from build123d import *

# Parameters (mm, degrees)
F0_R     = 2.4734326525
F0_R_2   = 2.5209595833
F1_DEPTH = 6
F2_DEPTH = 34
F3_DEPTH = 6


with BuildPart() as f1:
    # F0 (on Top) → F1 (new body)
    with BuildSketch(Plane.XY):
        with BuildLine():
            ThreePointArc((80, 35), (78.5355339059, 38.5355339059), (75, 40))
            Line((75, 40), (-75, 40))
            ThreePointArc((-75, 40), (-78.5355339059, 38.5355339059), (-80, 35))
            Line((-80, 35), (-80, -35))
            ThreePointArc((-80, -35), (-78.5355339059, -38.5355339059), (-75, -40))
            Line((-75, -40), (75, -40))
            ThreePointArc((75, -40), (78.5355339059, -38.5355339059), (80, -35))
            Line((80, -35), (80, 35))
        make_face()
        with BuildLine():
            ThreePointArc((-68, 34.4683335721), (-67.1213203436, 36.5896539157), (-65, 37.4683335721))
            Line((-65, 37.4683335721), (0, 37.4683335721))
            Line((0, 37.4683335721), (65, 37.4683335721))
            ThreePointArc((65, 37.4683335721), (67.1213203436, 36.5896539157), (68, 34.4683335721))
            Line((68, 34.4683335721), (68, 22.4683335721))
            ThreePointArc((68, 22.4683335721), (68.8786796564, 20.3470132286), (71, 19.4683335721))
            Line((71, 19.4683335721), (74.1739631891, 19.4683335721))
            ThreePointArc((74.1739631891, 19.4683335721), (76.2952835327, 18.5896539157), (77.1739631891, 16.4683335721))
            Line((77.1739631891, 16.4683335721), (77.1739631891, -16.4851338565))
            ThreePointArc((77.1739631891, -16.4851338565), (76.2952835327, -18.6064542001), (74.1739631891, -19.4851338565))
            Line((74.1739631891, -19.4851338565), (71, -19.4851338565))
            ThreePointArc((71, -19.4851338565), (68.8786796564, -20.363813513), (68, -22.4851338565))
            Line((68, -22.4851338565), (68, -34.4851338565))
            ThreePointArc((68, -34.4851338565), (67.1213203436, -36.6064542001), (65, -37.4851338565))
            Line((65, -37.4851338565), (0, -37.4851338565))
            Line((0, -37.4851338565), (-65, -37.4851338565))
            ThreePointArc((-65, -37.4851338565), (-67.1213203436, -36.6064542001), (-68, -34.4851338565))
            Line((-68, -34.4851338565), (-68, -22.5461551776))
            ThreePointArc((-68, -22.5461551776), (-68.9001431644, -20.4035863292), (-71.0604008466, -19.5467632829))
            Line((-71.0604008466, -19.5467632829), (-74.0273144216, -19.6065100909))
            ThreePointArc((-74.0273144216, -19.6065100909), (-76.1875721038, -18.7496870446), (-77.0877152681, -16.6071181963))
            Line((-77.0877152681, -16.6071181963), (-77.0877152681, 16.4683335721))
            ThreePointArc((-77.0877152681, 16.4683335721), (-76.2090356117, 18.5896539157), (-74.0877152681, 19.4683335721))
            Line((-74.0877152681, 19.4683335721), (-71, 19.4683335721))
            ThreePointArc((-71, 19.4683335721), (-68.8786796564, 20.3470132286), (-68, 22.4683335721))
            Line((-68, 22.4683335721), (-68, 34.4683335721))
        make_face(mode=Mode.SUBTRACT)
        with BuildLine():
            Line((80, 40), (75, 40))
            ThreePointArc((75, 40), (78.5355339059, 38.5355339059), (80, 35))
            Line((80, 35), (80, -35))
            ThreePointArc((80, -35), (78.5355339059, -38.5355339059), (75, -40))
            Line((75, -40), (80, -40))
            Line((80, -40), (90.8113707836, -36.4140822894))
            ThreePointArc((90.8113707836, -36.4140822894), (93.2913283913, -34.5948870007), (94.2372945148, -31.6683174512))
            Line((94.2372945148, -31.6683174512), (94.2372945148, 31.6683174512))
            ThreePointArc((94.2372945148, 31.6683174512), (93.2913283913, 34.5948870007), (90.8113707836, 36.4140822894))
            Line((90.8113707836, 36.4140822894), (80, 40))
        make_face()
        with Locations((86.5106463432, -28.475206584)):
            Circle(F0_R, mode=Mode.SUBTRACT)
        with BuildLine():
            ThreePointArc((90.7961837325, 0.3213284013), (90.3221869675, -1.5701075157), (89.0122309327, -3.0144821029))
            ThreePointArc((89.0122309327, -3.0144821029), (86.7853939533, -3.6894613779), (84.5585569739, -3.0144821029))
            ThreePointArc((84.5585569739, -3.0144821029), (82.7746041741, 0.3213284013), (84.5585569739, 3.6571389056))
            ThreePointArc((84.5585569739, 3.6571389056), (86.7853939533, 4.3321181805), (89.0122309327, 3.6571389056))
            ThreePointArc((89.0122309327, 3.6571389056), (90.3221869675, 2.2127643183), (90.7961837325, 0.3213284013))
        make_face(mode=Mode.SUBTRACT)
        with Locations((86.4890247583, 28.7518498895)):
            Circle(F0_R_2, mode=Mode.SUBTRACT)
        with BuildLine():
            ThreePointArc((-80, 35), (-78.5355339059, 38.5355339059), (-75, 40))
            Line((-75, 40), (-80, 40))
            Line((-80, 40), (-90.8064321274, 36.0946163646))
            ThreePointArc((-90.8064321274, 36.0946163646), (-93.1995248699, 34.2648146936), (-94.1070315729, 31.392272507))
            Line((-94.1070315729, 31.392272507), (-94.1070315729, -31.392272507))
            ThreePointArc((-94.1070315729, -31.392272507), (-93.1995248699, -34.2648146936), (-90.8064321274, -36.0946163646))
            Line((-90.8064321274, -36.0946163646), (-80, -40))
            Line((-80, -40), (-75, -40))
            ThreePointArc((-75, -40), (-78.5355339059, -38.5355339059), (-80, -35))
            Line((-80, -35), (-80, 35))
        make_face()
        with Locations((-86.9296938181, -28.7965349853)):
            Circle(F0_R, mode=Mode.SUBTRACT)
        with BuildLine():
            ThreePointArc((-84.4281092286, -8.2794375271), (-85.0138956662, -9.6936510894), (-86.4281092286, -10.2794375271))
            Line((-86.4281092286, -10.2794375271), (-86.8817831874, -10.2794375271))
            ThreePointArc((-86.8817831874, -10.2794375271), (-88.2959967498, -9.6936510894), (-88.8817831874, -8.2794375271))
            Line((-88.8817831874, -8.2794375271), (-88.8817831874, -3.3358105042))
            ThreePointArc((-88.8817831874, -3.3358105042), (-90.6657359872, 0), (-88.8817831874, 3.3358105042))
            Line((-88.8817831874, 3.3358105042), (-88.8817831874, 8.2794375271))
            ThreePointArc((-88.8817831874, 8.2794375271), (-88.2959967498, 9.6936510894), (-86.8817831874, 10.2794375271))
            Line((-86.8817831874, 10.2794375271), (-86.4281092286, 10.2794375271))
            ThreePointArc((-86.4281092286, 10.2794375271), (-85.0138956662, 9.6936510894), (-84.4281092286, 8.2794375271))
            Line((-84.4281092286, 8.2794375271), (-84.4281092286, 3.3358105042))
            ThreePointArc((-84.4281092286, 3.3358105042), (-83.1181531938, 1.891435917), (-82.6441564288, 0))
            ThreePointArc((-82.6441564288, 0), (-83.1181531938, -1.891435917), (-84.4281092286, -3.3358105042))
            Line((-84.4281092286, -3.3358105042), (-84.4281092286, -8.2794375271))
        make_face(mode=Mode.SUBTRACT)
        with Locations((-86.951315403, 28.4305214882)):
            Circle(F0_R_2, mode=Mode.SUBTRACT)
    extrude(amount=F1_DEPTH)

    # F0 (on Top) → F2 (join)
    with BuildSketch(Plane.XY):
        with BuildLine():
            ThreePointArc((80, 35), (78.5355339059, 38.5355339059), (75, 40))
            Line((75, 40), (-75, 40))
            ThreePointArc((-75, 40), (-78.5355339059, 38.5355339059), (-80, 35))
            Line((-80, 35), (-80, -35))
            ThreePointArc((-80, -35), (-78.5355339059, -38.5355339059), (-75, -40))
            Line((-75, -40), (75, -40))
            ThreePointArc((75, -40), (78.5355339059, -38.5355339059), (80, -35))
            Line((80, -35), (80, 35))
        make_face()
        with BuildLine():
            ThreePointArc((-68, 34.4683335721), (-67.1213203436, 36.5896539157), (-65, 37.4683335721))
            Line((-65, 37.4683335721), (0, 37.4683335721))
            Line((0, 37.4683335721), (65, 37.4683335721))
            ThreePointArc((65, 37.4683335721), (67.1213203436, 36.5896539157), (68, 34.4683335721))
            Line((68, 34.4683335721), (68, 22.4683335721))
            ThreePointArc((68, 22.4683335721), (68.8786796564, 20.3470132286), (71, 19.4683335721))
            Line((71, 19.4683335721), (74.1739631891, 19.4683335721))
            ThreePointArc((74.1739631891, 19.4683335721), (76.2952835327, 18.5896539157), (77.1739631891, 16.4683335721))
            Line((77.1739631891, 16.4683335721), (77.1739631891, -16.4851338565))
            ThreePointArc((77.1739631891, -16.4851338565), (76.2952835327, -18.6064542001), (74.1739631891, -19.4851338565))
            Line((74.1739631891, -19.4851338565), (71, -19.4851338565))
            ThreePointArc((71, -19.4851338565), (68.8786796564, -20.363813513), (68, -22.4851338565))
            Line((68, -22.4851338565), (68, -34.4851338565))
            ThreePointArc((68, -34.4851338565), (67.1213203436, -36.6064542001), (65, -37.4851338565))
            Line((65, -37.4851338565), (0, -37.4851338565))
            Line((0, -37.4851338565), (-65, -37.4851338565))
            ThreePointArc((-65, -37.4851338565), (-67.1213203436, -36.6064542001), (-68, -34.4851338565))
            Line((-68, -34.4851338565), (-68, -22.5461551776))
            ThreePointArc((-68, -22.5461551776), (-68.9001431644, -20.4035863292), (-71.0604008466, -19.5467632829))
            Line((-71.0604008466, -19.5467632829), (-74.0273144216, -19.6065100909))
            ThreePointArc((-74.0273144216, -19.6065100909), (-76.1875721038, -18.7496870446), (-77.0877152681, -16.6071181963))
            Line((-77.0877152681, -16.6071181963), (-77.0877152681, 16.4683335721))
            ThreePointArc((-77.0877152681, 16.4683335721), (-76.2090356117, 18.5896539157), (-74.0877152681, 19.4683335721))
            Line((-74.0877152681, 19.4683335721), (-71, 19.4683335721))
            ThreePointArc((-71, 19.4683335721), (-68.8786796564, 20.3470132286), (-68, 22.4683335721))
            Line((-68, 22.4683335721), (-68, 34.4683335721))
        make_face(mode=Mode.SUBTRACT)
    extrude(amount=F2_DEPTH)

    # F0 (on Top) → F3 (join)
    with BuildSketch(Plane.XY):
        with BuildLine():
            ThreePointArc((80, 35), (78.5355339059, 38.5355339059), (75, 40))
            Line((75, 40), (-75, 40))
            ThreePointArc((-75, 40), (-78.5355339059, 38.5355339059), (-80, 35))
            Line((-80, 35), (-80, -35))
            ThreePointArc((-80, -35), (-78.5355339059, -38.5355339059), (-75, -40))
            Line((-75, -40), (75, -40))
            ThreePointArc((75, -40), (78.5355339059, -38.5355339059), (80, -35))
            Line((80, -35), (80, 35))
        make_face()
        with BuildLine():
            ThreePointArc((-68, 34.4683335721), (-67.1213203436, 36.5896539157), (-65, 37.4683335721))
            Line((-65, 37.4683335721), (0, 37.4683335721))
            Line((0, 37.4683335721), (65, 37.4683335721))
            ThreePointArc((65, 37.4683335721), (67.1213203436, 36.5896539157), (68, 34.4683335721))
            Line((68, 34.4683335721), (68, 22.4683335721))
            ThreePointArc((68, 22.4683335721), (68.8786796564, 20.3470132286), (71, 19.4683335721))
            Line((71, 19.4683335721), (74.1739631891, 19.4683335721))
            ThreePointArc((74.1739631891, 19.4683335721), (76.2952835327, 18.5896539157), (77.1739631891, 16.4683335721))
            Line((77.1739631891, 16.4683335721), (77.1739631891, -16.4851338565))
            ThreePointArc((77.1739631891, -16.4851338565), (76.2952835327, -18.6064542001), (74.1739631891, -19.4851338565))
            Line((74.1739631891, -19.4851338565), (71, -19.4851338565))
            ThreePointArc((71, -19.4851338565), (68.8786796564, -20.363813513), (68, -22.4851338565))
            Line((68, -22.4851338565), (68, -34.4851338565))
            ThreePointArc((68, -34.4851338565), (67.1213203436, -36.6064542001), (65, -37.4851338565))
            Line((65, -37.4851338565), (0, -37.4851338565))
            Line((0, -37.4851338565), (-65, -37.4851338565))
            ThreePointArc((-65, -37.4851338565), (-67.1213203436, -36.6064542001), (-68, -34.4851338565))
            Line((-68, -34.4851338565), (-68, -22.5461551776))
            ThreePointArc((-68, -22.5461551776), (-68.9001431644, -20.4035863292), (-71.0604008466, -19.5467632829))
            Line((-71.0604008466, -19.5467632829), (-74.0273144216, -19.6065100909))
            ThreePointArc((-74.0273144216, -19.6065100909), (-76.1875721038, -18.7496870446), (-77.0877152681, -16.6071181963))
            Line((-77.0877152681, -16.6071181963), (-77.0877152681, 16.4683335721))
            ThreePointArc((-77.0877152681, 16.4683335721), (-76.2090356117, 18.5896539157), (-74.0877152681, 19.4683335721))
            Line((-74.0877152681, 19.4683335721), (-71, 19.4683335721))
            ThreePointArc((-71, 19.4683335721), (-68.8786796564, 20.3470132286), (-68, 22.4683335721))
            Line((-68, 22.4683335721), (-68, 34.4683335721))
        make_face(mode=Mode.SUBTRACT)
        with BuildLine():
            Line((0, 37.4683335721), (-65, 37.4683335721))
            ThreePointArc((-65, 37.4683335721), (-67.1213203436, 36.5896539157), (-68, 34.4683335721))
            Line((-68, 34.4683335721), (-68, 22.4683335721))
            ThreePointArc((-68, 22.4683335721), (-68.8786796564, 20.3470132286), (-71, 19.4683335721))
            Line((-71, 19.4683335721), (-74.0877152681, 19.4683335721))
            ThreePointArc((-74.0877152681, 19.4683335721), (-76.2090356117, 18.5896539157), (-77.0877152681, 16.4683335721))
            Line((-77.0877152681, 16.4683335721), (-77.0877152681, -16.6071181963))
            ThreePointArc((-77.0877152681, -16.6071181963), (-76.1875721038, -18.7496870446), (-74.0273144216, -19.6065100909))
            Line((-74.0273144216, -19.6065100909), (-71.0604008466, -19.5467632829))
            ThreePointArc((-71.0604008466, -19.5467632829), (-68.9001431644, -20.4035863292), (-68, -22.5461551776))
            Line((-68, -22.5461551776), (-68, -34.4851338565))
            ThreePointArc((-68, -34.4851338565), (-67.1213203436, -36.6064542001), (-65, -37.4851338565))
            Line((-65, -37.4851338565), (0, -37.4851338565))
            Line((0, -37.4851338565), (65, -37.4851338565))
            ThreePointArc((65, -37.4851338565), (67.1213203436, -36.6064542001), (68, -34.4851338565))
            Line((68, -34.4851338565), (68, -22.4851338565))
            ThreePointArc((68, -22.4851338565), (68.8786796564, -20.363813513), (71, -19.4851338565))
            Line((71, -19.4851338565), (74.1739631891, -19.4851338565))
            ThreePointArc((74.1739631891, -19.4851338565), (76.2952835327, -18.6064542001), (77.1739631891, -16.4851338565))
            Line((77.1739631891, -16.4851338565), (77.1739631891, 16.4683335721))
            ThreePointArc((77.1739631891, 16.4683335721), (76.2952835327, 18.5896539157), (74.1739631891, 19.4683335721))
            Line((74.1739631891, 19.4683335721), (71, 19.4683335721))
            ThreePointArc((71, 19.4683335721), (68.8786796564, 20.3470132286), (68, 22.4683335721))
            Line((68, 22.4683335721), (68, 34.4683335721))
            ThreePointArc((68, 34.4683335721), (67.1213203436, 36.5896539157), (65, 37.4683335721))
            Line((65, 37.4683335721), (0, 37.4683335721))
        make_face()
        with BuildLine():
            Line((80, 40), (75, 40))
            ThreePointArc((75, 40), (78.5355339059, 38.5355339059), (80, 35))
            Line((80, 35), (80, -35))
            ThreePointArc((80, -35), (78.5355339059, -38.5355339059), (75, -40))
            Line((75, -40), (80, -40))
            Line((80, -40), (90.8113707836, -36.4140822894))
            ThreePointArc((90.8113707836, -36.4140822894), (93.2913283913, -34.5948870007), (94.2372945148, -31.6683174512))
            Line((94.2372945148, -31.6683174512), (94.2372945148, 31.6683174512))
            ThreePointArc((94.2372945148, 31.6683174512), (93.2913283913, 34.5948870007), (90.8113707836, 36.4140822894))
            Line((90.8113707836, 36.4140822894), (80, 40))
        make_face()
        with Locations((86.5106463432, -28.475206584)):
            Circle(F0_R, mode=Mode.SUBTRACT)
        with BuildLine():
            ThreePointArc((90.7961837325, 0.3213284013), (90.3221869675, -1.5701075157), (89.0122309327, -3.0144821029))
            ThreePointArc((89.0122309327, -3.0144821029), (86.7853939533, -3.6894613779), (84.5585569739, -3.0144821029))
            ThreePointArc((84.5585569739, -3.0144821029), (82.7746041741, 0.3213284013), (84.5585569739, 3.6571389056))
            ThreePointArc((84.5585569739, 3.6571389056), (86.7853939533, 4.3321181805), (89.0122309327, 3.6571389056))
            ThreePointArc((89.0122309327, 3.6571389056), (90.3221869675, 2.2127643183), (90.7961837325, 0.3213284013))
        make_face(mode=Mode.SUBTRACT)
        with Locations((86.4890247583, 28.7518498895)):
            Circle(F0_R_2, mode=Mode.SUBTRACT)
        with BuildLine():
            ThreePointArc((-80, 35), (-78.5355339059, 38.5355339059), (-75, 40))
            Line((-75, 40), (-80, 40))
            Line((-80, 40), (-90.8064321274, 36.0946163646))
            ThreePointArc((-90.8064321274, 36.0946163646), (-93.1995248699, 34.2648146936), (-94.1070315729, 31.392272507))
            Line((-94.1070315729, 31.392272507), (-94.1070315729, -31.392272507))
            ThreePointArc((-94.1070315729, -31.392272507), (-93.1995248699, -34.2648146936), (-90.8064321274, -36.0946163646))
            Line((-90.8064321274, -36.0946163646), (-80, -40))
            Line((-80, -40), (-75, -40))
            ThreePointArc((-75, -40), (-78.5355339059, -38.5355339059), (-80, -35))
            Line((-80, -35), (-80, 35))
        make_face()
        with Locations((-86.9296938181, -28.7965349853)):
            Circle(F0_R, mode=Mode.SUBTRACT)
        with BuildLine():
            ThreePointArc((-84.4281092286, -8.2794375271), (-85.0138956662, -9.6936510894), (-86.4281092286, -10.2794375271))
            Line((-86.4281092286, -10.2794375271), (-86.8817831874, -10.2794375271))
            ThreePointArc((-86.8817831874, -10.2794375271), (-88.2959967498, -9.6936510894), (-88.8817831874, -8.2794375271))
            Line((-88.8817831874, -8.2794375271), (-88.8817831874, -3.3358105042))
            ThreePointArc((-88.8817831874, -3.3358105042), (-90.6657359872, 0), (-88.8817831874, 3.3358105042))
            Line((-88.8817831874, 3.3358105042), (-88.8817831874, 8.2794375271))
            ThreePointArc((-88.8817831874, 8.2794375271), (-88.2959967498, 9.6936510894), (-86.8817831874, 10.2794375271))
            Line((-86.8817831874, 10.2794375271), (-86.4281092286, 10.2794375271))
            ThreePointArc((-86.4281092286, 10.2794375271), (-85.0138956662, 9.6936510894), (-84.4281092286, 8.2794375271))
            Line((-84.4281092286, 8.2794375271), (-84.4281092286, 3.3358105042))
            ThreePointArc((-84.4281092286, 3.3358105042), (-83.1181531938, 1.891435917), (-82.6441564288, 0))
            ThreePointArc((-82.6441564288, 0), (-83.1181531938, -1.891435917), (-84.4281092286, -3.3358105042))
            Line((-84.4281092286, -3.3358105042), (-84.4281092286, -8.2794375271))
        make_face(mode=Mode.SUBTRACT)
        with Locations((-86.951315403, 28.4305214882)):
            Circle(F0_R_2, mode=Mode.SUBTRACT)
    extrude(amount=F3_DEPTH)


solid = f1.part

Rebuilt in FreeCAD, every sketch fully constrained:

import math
import FreeCAD as App
import Part
import Sketcher

V = App.Vector

doc = App.newDocument("Part")
body = doc.addObject("PartDesign::Body", "Body")

# Sketch on XY plane
sketch1 = body.newObject("Sketcher::SketchObject", "Sketch")
sketch1.AttachmentSupport = (doc.getObject("XY_Plane"), [""])
sketch1.MapMode = "FlatFace"
sketch1.addGeometry([
    Part.LineSegment(V(80, 40, 0), V(-80, 40, 0)),  # 0
    Part.LineSegment(V(-80, 40, 0), V(-90.81, 36.09, 0)),  # 1
    Part.ArcOfCircle(Part.Circle(V(-89.11, 31.39, 0), V(0, 0, 1), 5), math.radians(110), math.radians(180)),  # 2
    Part.LineSegment(V(-94.11, 31.39, 0), V(-94.11, -31.39, 0)),  # 3
    Part.ArcOfCircle(Part.Circle(V(-89.11, -31.39, 0), V(0, 0, 1), 5), math.radians(180), math.radians(250)),  # 4
    Part.LineSegment(V(-90.81, -36.09, 0), V(-80, -40, 0)),  # 5
    Part.LineSegment(V(-80, -40, 0), V(80, -40, 0)),  # 6
    Part.LineSegment(V(80, -40, 0), V(90.81, -36.41, 0)),  # 7
    Part.ArcOfCircle(Part.Circle(V(89.24, -31.67, 0), V(0, 0, 1), 5), math.radians(-72), math.radians(0)),  # 8
    Part.LineSegment(V(94.24, -31.67, 0), V(94.24, 31.67, 0)),  # 9
    Part.ArcOfCircle(Part.Circle(V(89.24, 31.67, 0), V(0, 0, 1), 5), math.radians(0), math.radians(72)),  # 10
    Part.LineSegment(V(90.81, 36.41, 0), V(80, 40, 0)),  # 11
    Part.Circle(V(-86.93, -28.8, 0), V(0, 0, 1), 2.47),  # 12
    Part.LineSegment(V(-68, 22.47, 0), V(-68, 34.47, 0)),  # 13
    Part.ArcOfCircle(Part.Circle(V(-65, 34.47, 0), V(0, 0, 1), 3), math.radians(90), math.radians(180)),  # 14
    Part.LineSegment(V(-65, 37.47, 0), V(65, 37.47, 0)),  # 15
    Part.ArcOfCircle(Part.Circle(V(65, 34.47, 0), V(0, 0, 1), 3), math.radians(0), math.radians(90)),  # 16
    Part.LineSegment(V(68, 34.47, 0), V(68, 22.47, 0)),  # 17
    Part.ArcOfCircle(Part.Circle(V(71, 22.47, 0), V(0, 0, 1), 3), math.radians(180), math.radians(270)),  # 18
    Part.LineSegment(V(71, 19.47, 0), V(74.17, 19.47, 0)),  # 19
    Part.ArcOfCircle(Part.Circle(V(74.17, 16.47, 0), V(0, 0, 1), 3), math.radians(0), math.radians(90)),  # 20
    Part.LineSegment(V(77.17, 16.47, 0), V(77.17, -16.49, 0)),  # 21
    Part.ArcOfCircle(Part.Circle(V(74.17, -16.49, 0), V(0, 0, 1), 3), math.radians(-90), math.radians(0)),  # 22
    Part.LineSegment(V(74.17, -19.49, 0), V(71, -19.49, 0)),  # 23
    Part.ArcOfCircle(Part.Circle(V(71, -22.49, 0), V(0, 0, 1), 3), math.radians(90), math.radians(180)),  # 24
    Part.LineSegment(V(68, -22.49, 0), V(68, -34.49, 0)),  # 25
    Part.ArcOfCircle(Part.Circle(V(65, -34.49, 0), V(0, 0, 1), 3), math.radians(-90), math.radians(0)),  # 26
    Part.LineSegment(V(65, -37.49, 0), V(-65, -37.49, 0)),  # 27
    Part.ArcOfCircle(Part.Circle(V(-65, -34.49, 0), V(0, 0, 1), 3), math.radians(180), math.radians(270)),  # 28
    Part.LineSegment(V(-68, -34.49, 0), V(-68, -22.55, 0)),  # 29
    Part.ArcOfCircle(Part.Circle(V(-71, -22.55, 0), V(0, 0, 1), 3), math.radians(0), math.radians(91)),  # 30
    Part.LineSegment(V(-71.06, -19.55, 0), V(-74.03, -19.61, 0)),  # 31
    Part.ArcOfCircle(Part.Circle(V(-74.09, -16.61, 0), V(0, 0, 1), 3), math.radians(180), math.radians(271)),  # 32
    Part.LineSegment(V(-77.09, -16.61, 0), V(-77.09, 16.47, 0)),  # 33
    Part.ArcOfCircle(Part.Circle(V(-74.09, 16.47, 0), V(0, 0, 1), 3), math.radians(90), math.radians(180)),  # 34
    Part.LineSegment(V(-74.09, 19.47, 0), V(-71, 19.47, 0)),  # 35
    Part.ArcOfCircle(Part.Circle(V(-71, 22.47, 0), V(0, 0, 1), 3), math.radians(-90), math.radians(0)),  # 36
    Part.Circle(V(86.51, -28.48, 0), V(0, 0, 1), 2.47),  # 37
    Part.LineSegment(V(-84.43, -3.34, 0), V(-84.43, -8.28, 0)),  # 38
    Part.ArcOfCircle(Part.Circle(V(-86.43, -8.28, 0), V(0, 0, 1), 2), math.radians(-90), math.radians(0)),  # 39
    Part.LineSegment(V(-86.43, -10.28, 0), V(-86.88, -10.28, 0)),  # 40
    Part.ArcOfCircle(Part.Circle(V(-86.88, -8.28, 0), V(0, 0, 1), 2), math.radians(180), math.radians(270)),  # 41
    Part.LineSegment(V(-88.88, -8.28, 0), V(-88.88, -3.34, 0)),  # 42
    Part.ArcOfCircle(Part.Circle(V(-86.65, 0, 0), V(0, 0, 1), 4.01), math.radians(124), math.radians(236)),  # 43
    Part.LineSegment(V(-88.88, 3.34, 0), V(-88.88, 8.28, 0)),  # 44
    Part.ArcOfCircle(Part.Circle(V(-86.88, 8.28, 0), V(0, 0, 1), 2), math.radians(90), math.radians(180)),  # 45
    Part.LineSegment(V(-86.88, 10.28, 0), V(-86.43, 10.28, 0)),  # 46
    Part.ArcOfCircle(Part.Circle(V(-86.43, 8.28, 0), V(0, 0, 1), 2), math.radians(0), math.radians(90)),  # 47
    Part.LineSegment(V(-84.43, 8.28, 0), V(-84.43, 3.34, 0)),  # 48
    Part.ArcOfCircle(Part.Circle(V(-86.65, 0, 0), V(0, 0, 1), 4.01), math.radians(0), math.radians(56)),  # 49
    Part.ArcOfCircle(Part.Circle(V(-86.65, 0, 0), V(0, 0, 1), 4.01), math.radians(-56), math.radians(0)),  # 50
    Part.Circle(V(-86.95, 28.43, 0), V(0, 0, 1), 2.52),  # 51
    Part.ArcOfCircle(Part.Circle(V(86.79, 0.32, 0), V(0, 0, 1), 4.01), math.radians(0), math.radians(56)),  # 52
    Part.ArcOfCircle(Part.Circle(V(86.79, 0.32, 0), V(0, 0, 1), 4.01), math.radians(-56), math.radians(0)),  # 53
    Part.ArcOfCircle(Part.Circle(V(86.79, 0.32, 0), V(0, 0, 1), 4.01), math.radians(-124), math.radians(-56)),  # 54
    Part.ArcOfCircle(Part.Circle(V(86.79, 0.32, 0), V(0, 0, 1), 4.01), math.radians(124), math.radians(236)),  # 55
    Part.ArcOfCircle(Part.Circle(V(86.79, 0.32, 0), V(0, 0, 1), 4.01), math.radians(56), math.radians(124)),  # 56
    Part.Circle(V(86.49, 28.75, 0), V(0, 0, 1), 2.52),  # 57
], False)
sketch1.addConstraint([
    Sketcher.Constraint("Coincident", 0, 2, 1, 1),
    Sketcher.Constraint("Tangent", 1, 2, 2, 1),
    Sketcher.Constraint("Tangent", 2, 2, 3, 1),
    Sketcher.Constraint("Tangent", 3, 2, 4, 1),
    Sketcher.Constraint("Tangent", 4, 2, 5, 1),
    Sketcher.Constraint("Coincident", 5, 2, 6, 1),
    Sketcher.Constraint("Coincident", 6, 2, 7, 1),
    Sketcher.Constraint("Tangent", 7, 2, 8, 1),
    Sketcher.Constraint("Tangent", 8, 2, 9, 1),
    Sketcher.Constraint("Tangent", 9, 2, 10, 1),
    Sketcher.Constraint("Tangent", 10, 2, 11, 1),
    Sketcher.Constraint("Coincident", 11, 2, 0, 1),
    Sketcher.Constraint("Tangent", 13, 2, 14, 2),
    Sketcher.Constraint("Tangent", 14, 1, 15, 1),
    Sketcher.Constraint("Tangent", 15, 2, 16, 2),
    Sketcher.Constraint("Tangent", 16, 1, 17, 1),
    Sketcher.Constraint("Tangent", 17, 2, 18, 1),
    Sketcher.Constraint("Tangent", 18, 2, 19, 1),
    Sketcher.Constraint("Tangent", 19, 2, 20, 2),
    Sketcher.Constraint("Tangent", 20, 1, 21, 1),
    Sketcher.Constraint("Tangent", 21, 2, 22, 2),
    Sketcher.Constraint("Tangent", 22, 1, 23, 1),
    Sketcher.Constraint("Tangent", 23, 2, 24, 1),
    Sketcher.Constraint("Tangent", 24, 2, 25, 1),
    Sketcher.Constraint("Tangent", 25, 2, 26, 2),
    Sketcher.Constraint("Tangent", 26, 1, 27, 1),
    Sketcher.Constraint("Tangent", 27, 2, 28, 2),
    Sketcher.Constraint("Tangent", 28, 1, 29, 1),
    Sketcher.Constraint("Tangent", 29, 2, 30, 1),
    Sketcher.Constraint("Tangent", 30, 2, 31, 1),
    Sketcher.Constraint("Tangent", 31, 2, 32, 2),
    Sketcher.Constraint("Tangent", 32, 1, 33, 1),
    Sketcher.Constraint("Tangent", 33, 2, 34, 2),
    Sketcher.Constraint("Tangent", 34, 1, 35, 1),
    Sketcher.Constraint("Tangent", 35, 2, 36, 1),
    Sketcher.Constraint("Tangent", 36, 2, 13, 1),
    Sketcher.Constraint("Tangent", 38, 2, 39, 2),
    Sketcher.Constraint("Tangent", 39, 1, 40, 1),
    Sketcher.Constraint("Tangent", 40, 2, 41, 2),
    Sketcher.Constraint("Tangent", 41, 1, 42, 1),
    Sketcher.Constraint("Coincident", 42, 2, 43, 2),
    Sketcher.Constraint("Coincident", 43, 1, 44, 1),
    Sketcher.Constraint("Tangent", 44, 2, 45, 2),
    Sketcher.Constraint("Tangent", 45, 1, 46, 1),
    Sketcher.Constraint("Tangent", 46, 2, 47, 2),
    Sketcher.Constraint("Tangent", 47, 1, 48, 1),
    Sketcher.Constraint("Coincident", 48, 2, 49, 2),
    Sketcher.Constraint("Tangent", 49, 1, 50, 2),
    Sketcher.Constraint("Coincident", 50, 1, 38, 1),
    Sketcher.Constraint("Tangent", 52, 1, 53, 2),
    Sketcher.Constraint("Tangent", 53, 1, 54, 2),
    Sketcher.Constraint("Tangent", 54, 1, 55, 2),
    Sketcher.Constraint("Tangent", 55, 1, 56, 2),
    Sketcher.Constraint("Tangent", 56, 1, 52, 2),
    Sketcher.Constraint("Horizontal", 0),
    Sketcher.Constraint("Vertical", 3),
    Sketcher.Constraint("Horizontal", 6),
    Sketcher.Constraint("Vertical", 9),
    Sketcher.Constraint("Vertical", 13),
    Sketcher.Constraint("Horizontal", 15),
    Sketcher.Constraint("Vertical", 17),
    Sketcher.Constraint("Horizontal", 19),
    Sketcher.Constraint("Vertical", 21),
    Sketcher.Constraint("Horizontal", 23),
    Sketcher.Constraint("Vertical", 25),
    Sketcher.Constraint("Horizontal", 27),
    Sketcher.Constraint("Vertical", 29),
    Sketcher.Constraint("Vertical", 33),
    Sketcher.Constraint("Horizontal", 35),
    Sketcher.Constraint("Vertical", 38),
    Sketcher.Constraint("Horizontal", 40),
    Sketcher.Constraint("Vertical", 42),
    Sketcher.Constraint("Vertical", 44),
    Sketcher.Constraint("Horizontal", 46),
    Sketcher.Constraint("Vertical", 48),
    Sketcher.Constraint("Coincident", 49, 3, 43, 3),
    Sketcher.Constraint("Coincident", 54, 3, 52, 3),
    Sketcher.Constraint("Equal", 2, 4),
    Sketcher.Constraint("Equal", 4, 8),
    Sketcher.Constraint("Equal", 8, 10),
    Sketcher.Constraint("Equal", 14, 16),
    Sketcher.Constraint("Equal", 16, 18),
    Sketcher.Constraint("Equal", 18, 20),
    Sketcher.Constraint("Equal", 20, 22),
    Sketcher.Constraint("Equal", 22, 24),
    Sketcher.Constraint("Equal", 24, 26),
    Sketcher.Constraint("Equal", 26, 28),
    Sketcher.Constraint("Equal", 28, 30),
    Sketcher.Constraint("Equal", 30, 32),
    Sketcher.Constraint("Equal", 32, 34),
    Sketcher.Constraint("Equal", 34, 36),
    Sketcher.Constraint("Equal", 12, 37),
    Sketcher.Constraint("Equal", 39, 41),
    Sketcher.Constraint("Equal", 41, 45),
    Sketcher.Constraint("Equal", 45, 47),
    Sketcher.Constraint("Equal", 43, 49),
    Sketcher.Constraint("Equal", 49, 50),
    Sketcher.Constraint("Equal", 50, 52),
    Sketcher.Constraint("Equal", 51, 57),
    Sketcher.Constraint("Symmetric", 0, 2, 6, 2, -1, 1),
    Sketcher.Constraint("Symmetric", 18, 3, 36, 3, -2),
    Sketcher.Constraint("Symmetric", 41, 3, 45, 3, -1),
    Sketcher.Constraint("Symmetric", 1, 2, 4, 2, -1),
    Sketcher.Constraint("Symmetric", 7, 2, 10, 2, -1),
    Sketcher.Constraint("Symmetric", 48, 2, 50, 1, -1),
    Sketcher.Constraint("PointOnObject", 49, 1, -1),
    Sketcher.Constraint("Horizontal", 43, 1, 48, 2),
    Sketcher.Constraint("Horizontal", 56, 3, 52, 1),
    Sketcher.Constraint("Horizontal", 53, 1, 54, 1),
    Sketcher.Constraint("Horizontal", 55, 1, 56, 1),
    Sketcher.Constraint("Vertical", 18, 3, 24, 3),
    Sketcher.Constraint("Vertical", 14, 3, 28, 3),
    Sketcher.Constraint("Vertical", 54, 1, 55, 1),
    Sketcher.Constraint("Equal", 17, 25),
    Sketcher.Constraint("Radius", 2, 5.0),
    Sketcher.Constraint("Radius", 14, 3.0),
    Sketcher.Constraint("Radius", 39, 2.0),
    Sketcher.Constraint("DistanceX", 0, 2, 0, 1, 160.0),
    Sketcher.Constraint("DistanceX", 15, 1, 15, 2, 130.0),
    Sketcher.Constraint("DistanceY", 13, 1, 13, 2, 12.0),
    Sketcher.Constraint("DistanceY", -1, 1, 0, 2, 40.0),
    Sketcher.Constraint("Diameter", 51, 5.041919),
    Sketcher.Constraint("Radius", 43, 4.01079),
    Sketcher.Constraint("Diameter", 12, 4.946865),
    Sketcher.Constraint("DistanceY", 29, 1, 29, 2, 11.938979),
    Sketcher.Constraint("DistanceY", 33, 1, 33, 2, 33.075452),
    Sketcher.Constraint("DistanceX", 30, 2, -1, 1, 71.060401),
    Sketcher.Constraint("DistanceX", 19, 1, 19, 2, 3.173963),
    Sketcher.Constraint("DistanceX", 35, 1, 35, 2, 3.087715),
    Sketcher.Constraint("DistanceX", 40, 2, 40, 1, 0.453674),
    Sketcher.Constraint("DistanceY", 3, 2, 3, 1, 62.784545),
    Sketcher.Constraint("DistanceY", 9, 1, 9, 2, 63.336635),
    Sketcher.Constraint("DistanceY", 38, 2, 38, 1, 4.943627),
    Sketcher.Constraint("DistanceX", 2, 3, -1, 1, 89.107032),
    Sketcher.Constraint("DistanceY", 32, 3, -1, 1, 16.607118),
    Sketcher.Constraint("DistanceX", 39, 3, -1, 1, 86.428109),
    Sketcher.Constraint("DistanceY", -1, 1, 51, 3, 28.430521),
    Sketcher.Constraint("DistanceY", -1, 1, 52, 3, 0.321328),
    Sketcher.Constraint("DistanceY", -1, 1, 57, 3, 28.75185),
    Sketcher.Constraint("DistanceX", -1, 1, 7, 2, 90.811371),
    Sketcher.Constraint("DistanceX", -1, 1, 53, 1, 89.012231),
    Sketcher.Constraint("DistanceY", -1, 1, 55, 1, 3.657139),
    Sketcher.Constraint("DistanceX", 12, 3, -1, 1, 86.929694),
    Sketcher.Constraint("DistanceY", 12, 3, -1, 1, 28.796535),
    Sketcher.Constraint("DistanceX", -1, 1, 37, 3, 86.510646),
    Sketcher.Constraint("DistanceY", 37, 3, -1, 1, 28.475207),
    Sketcher.Constraint("DistanceX", 51, 3, -1, 1, 86.951315),
    Sketcher.Constraint("DistanceX", -1, 1, 57, 3, 86.489025),
])
pad1 = body.newObject("PartDesign::Pad", "Pad")
pad1.Profile = sketch1
pad1.Length = 6

# Sketch on XY plane
sketch2 = body.newObject("Sketcher::SketchObject", "Sketch001")
sketch2.AttachmentSupport = (doc.getObject("XY_Plane"), [""])
sketch2.MapMode = "FlatFace"
sketch2.addGeometry([
    Part.ArcOfCircle(Part.Circle(V(75, 35, 0), V(0, 0, 1), 5), math.radians(0), math.radians(90)),  # 0
    Part.LineSegment(V(75, 40, 0), V(-75, 40, 0)),  # 1
    Part.ArcOfCircle(Part.Circle(V(-75, 35, 0), V(0, 0, 1), 5), math.radians(90), math.radians(180)),  # 2
    Part.LineSegment(V(-80, 35, 0), V(-80, -35, 0)),  # 3
    Part.ArcOfCircle(Part.Circle(V(-75, -35, 0), V(0, 0, 1), 5), math.radians(180), math.radians(270)),  # 4
    Part.LineSegment(V(-75, -40, 0), V(75, -40, 0)),  # 5
    Part.ArcOfCircle(Part.Circle(V(75, -35, 0), V(0, 0, 1), 5), math.radians(-90), math.radians(0)),  # 6
    Part.LineSegment(V(80, -35, 0), V(80, 35, 0)),  # 7
    Part.LineSegment(V(-68, 22.5, 0), V(-68, 34.5, 0)),  # 8
    Part.ArcOfCircle(Part.Circle(V(-65, 34.5, 0), V(0, 0, 1), 3), math.radians(90), math.radians(180)),  # 9
    Part.LineSegment(V(-65, 37.5, 0), V(65, 37.5, 0)),  # 10
    Part.ArcOfCircle(Part.Circle(V(65, 34.5, 0), V(0, 0, 1), 3), math.radians(0), math.radians(90)),  # 11
    Part.LineSegment(V(68, 34.5, 0), V(68, 22.5, 0)),  # 12
    Part.ArcOfCircle(Part.Circle(V(71, 22.5, 0), V(0, 0, 1), 3), math.radians(180), math.radians(270)),  # 13
    Part.LineSegment(V(71, 19.5, 0), V(74.2, 19.5, 0)),  # 14
    Part.ArcOfCircle(Part.Circle(V(74.2, 16.5, 0), V(0, 0, 1), 3), math.radians(0), math.radians(90)),  # 15
    Part.LineSegment(V(77.2, 16.5, 0), V(77.2, -16.5, 0)),  # 16
    Part.ArcOfCircle(Part.Circle(V(74.2, -16.5, 0), V(0, 0, 1), 3), math.radians(-90), math.radians(0)),  # 17
    Part.LineSegment(V(74.2, -19.5, 0), V(71, -19.5, 0)),  # 18
    Part.ArcOfCircle(Part.Circle(V(71, -22.5, 0), V(0, 0, 1), 3), math.radians(90), math.radians(180)),  # 19
    Part.LineSegment(V(68, -22.5, 0), V(68, -34.5, 0)),  # 20
    Part.ArcOfCircle(Part.Circle(V(65, -34.5, 0), V(0, 0, 1), 3), math.radians(-90), math.radians(0)),  # 21
    Part.LineSegment(V(65, -37.5, 0), V(-65, -37.5, 0)),  # 22
    Part.ArcOfCircle(Part.Circle(V(-65, -34.5, 0), V(0, 0, 1), 3), math.radians(180), math.radians(270)),  # 23
    Part.LineSegment(V(-68, -34.5, 0), V(-68, -22.5, 0)),  # 24
    Part.ArcOfCircle(Part.Circle(V(-71, -22.5, 0), V(0, 0, 1), 3), math.radians(0), math.radians(91)),  # 25
    Part.LineSegment(V(-71.1, -19.5, 0), V(-74, -19.6, 0)),  # 26
    Part.ArcOfCircle(Part.Circle(V(-74.1, -16.6, 0), V(0, 0, 1), 3), math.radians(180), math.radians(271)),  # 27
    Part.LineSegment(V(-77.1, -16.6, 0), V(-77.1, 16.5, 0)),  # 28
    Part.ArcOfCircle(Part.Circle(V(-74.1, 16.5, 0), V(0, 0, 1), 3), math.radians(90), math.radians(180)),  # 29
    Part.LineSegment(V(-74.1, 19.5, 0), V(-71, 19.5, 0)),  # 30
    Part.ArcOfCircle(Part.Circle(V(-71, 22.5, 0), V(0, 0, 1), 3), math.radians(-90), math.radians(0)),  # 31
], False)
sketch2.addConstraint([
    Sketcher.Constraint("Tangent", 0, 2, 1, 1),
    Sketcher.Constraint("Tangent", 1, 2, 2, 1),
    Sketcher.Constraint("Tangent", 2, 2, 3, 1),
    Sketcher.Constraint("Tangent", 3, 2, 4, 1),
    Sketcher.Constraint("Tangent", 4, 2, 5, 1),
    Sketcher.Constraint("Tangent", 5, 2, 6, 1),
    Sketcher.Constraint("Tangent", 6, 2, 7, 1),
    Sketcher.Constraint("Tangent", 7, 2, 0, 1),
    Sketcher.Constraint("Tangent", 8, 2, 9, 2),
    Sketcher.Constraint("Tangent", 9, 1, 10, 1),
    Sketcher.Constraint("Tangent", 10, 2, 11, 2),
    Sketcher.Constraint("Tangent", 11, 1, 12, 1),
    Sketcher.Constraint("Tangent", 12, 2, 13, 1),
    Sketcher.Constraint("Tangent", 13, 2, 14, 1),
    Sketcher.Constraint("Tangent", 14, 2, 15, 2),
    Sketcher.Constraint("Tangent", 15, 1, 16, 1),
    Sketcher.Constraint("Tangent", 16, 2, 17, 2),
    Sketcher.Constraint("Tangent", 17, 1, 18, 1),
    Sketcher.Constraint("Tangent", 18, 2, 19, 1),
    Sketcher.Constraint("Tangent", 19, 2, 20, 1),
    Sketcher.Constraint("Tangent", 20, 2, 21, 2),
    Sketcher.Constraint("Tangent", 21, 1, 22, 1),
    Sketcher.Constraint("Tangent", 22, 2, 23, 2),
    Sketcher.Constraint("Tangent", 23, 1, 24, 1),
    Sketcher.Constraint("Tangent", 24, 2, 25, 1),
    Sketcher.Constraint("Tangent", 25, 2, 26, 1),
    Sketcher.Constraint("Tangent", 26, 2, 27, 2),
    Sketcher.Constraint("Tangent", 27, 1, 28, 1),
    Sketcher.Constraint("Tangent", 28, 2, 29, 2),
    Sketcher.Constraint("Tangent", 29, 1, 30, 1),
    Sketcher.Constraint("Tangent", 30, 2, 31, 1),
    Sketcher.Constraint("Tangent", 31, 2, 8, 1),
    Sketcher.Constraint("Horizontal", 1),
    Sketcher.Constraint("Vertical", 3),
    Sketcher.Constraint("Horizontal", 5),
    Sketcher.Constraint("Vertical", 7),
    Sketcher.Constraint("Vertical", 8),
    Sketcher.Constraint("Horizontal", 10),
    Sketcher.Constraint("Vertical", 12),
    Sketcher.Constraint("Horizontal", 14),
    Sketcher.Constraint("Vertical", 16),
    Sketcher.Constraint("Horizontal", 18),
    Sketcher.Constraint("Vertical", 20),
    Sketcher.Constraint("Horizontal", 22),
    Sketcher.Constraint("Vertical", 24),
    Sketcher.Constraint("Vertical", 28),
    Sketcher.Constraint("Horizontal", 30),
    Sketcher.Constraint("Equal", 0, 2),
    Sketcher.Constraint("Equal", 2, 4),
    Sketcher.Constraint("Equal", 4, 6),
    Sketcher.Constraint("Equal", 9, 11),
    Sketcher.Constraint("Equal", 11, 13),
    Sketcher.Constraint("Equal", 13, 15),
    Sketcher.Constraint("Equal", 15, 17),
    Sketcher.Constraint("Equal", 17, 19),
    Sketcher.Constraint("Equal", 19, 21),
    Sketcher.Constraint("Equal", 21, 23),
    Sketcher.Constraint("Equal", 23, 25),
    Sketcher.Constraint("Equal", 25, 27),
    Sketcher.Constraint("Equal", 27, 29),
    Sketcher.Constraint("Equal", 29, 31),
    Sketcher.Constraint("Symmetric", 0, 3, 4, 3, -1, 1),
    Sketcher.Constraint("Symmetric", 13, 3, 31, 3, -2),
    Sketcher.Constraint("Vertical", 13, 3, 19, 3),
    Sketcher.Constraint("Vertical", 9, 3, 23, 3),
    Sketcher.Constraint("Equal", 12, 20),
    Sketcher.Constraint("Radius", 0, 5.0),
    Sketcher.Constraint("Radius", 9, 3.0),
    Sketcher.Constraint("DistanceX", 1, 2, 1, 1, 150.0),
    Sketcher.Constraint("DistanceX", 10, 1, 10, 2, 130.0),
    Sketcher.Constraint("DistanceY", 3, 2, 3, 1, 70.0),
    Sketcher.Constraint("DistanceY", 8, 1, 8, 2, 12.0),
    Sketcher.Constraint("DistanceY", 24, 1, 24, 2, 11.938979),
    Sketcher.Constraint("DistanceY", 28, 1, 28, 2, 33.075452),
    Sketcher.Constraint("DistanceX", 25, 2, -1, 1, 71.060401),
    Sketcher.Constraint("DistanceX", 14, 1, 14, 2, 3.173963),
    Sketcher.Constraint("DistanceX", 30, 1, 30, 2, 3.087715),
    Sketcher.Constraint("DistanceY", 27, 3, -1, 1, 16.607118),
])
pad2 = body.newObject("PartDesign::Pad", "Pad001")
pad2.Profile = sketch2
pad2.Length = 34

# Sketch on XY plane
sketch3 = body.newObject("Sketcher::SketchObject", "Sketch002")
sketch3.AttachmentSupport = (doc.getObject("XY_Plane"), [""])
sketch3.MapMode = "FlatFace"
sketch3.addGeometry([
    Part.LineSegment(V(80, 40, 0), V(-80, 40, 0)),  # 0
    Part.LineSegment(V(-80, 40, 0), V(-90.81, 36.09, 0)),  # 1
    Part.ArcOfCircle(Part.Circle(V(-89.11, 31.39, 0), V(0, 0, 1), 5), math.radians(110), math.radians(180)),  # 2
    Part.LineSegment(V(-94.11, 31.39, 0), V(-94.11, -31.39, 0)),  # 3
    Part.ArcOfCircle(Part.Circle(V(-89.11, -31.39, 0), V(0, 0, 1), 5), math.radians(180), math.radians(250)),  # 4
    Part.LineSegment(V(-90.81, -36.09, 0), V(-80, -40, 0)),  # 5
    Part.LineSegment(V(-80, -40, 0), V(80, -40, 0)),  # 6
    Part.LineSegment(V(80, -40, 0), V(90.81, -36.41, 0)),  # 7
    Part.ArcOfCircle(Part.Circle(V(89.24, -31.67, 0), V(0, 0, 1), 5), math.radians(-72), math.radians(0)),  # 8
    Part.LineSegment(V(94.24, -31.67, 0), V(94.24, 31.67, 0)),  # 9
    Part.ArcOfCircle(Part.Circle(V(89.24, 31.67, 0), V(0, 0, 1), 5), math.radians(0), math.radians(72)),  # 10
    Part.LineSegment(V(90.81, 36.41, 0), V(80, 40, 0)),  # 11
    Part.Circle(V(-86.93, -28.8, 0), V(0, 0, 1), 2.47),  # 12
    Part.LineSegment(V(-84.43, -3.34, 0), V(-84.43, -8.28, 0)),  # 13
    Part.ArcOfCircle(Part.Circle(V(-86.43, -8.28, 0), V(0, 0, 1), 2), math.radians(-90), math.radians(0)),  # 14
    Part.LineSegment(V(-86.43, -10.28, 0), V(-86.88, -10.28, 0)),  # 15
    Part.ArcOfCircle(Part.Circle(V(-86.88, -8.28, 0), V(0, 0, 1), 2), math.radians(180), math.radians(270)),  # 16
    Part.LineSegment(V(-88.88, -8.28, 0), V(-88.88, -3.34, 0)),  # 17
    Part.ArcOfCircle(Part.Circle(V(-86.65, 0, 0), V(0, 0, 1), 4.01), math.radians(124), math.radians(236)),  # 18
    Part.LineSegment(V(-88.88, 3.34, 0), V(-88.88, 8.28, 0)),  # 19
    Part.ArcOfCircle(Part.Circle(V(-86.88, 8.28, 0), V(0, 0, 1), 2), math.radians(90), math.radians(180)),  # 20
    Part.LineSegment(V(-86.88, 10.28, 0), V(-86.43, 10.28, 0)),  # 21
    Part.ArcOfCircle(Part.Circle(V(-86.43, 8.28, 0), V(0, 0, 1), 2), math.radians(0), math.radians(90)),  # 22
    Part.LineSegment(V(-84.43, 8.28, 0), V(-84.43, 3.34, 0)),  # 23
    Part.ArcOfCircle(Part.Circle(V(-86.65, 0, 0), V(0, 0, 1), 4.01), math.radians(0), math.radians(56)),  # 24
    Part.ArcOfCircle(Part.Circle(V(-86.65, 0, 0), V(0, 0, 1), 4.01), math.radians(-56), math.radians(0)),  # 25
    Part.Circle(V(86.51, -28.48, 0), V(0, 0, 1), 2.47),  # 26
    Part.Circle(V(-86.95, 28.43, 0), V(0, 0, 1), 2.52),  # 27
    Part.ArcOfCircle(Part.Circle(V(86.79, 0.32, 0), V(0, 0, 1), 4.01), math.radians(0), math.radians(56)),  # 28
    Part.ArcOfCircle(Part.Circle(V(86.79, 0.32, 0), V(0, 0, 1), 4.01), math.radians(-56), math.radians(0)),  # 29
    Part.ArcOfCircle(Part.Circle(V(86.79, 0.32, 0), V(0, 0, 1), 4.01), math.radians(-124), math.radians(-56)),  # 30
    Part.ArcOfCircle(Part.Circle(V(86.79, 0.32, 0), V(0, 0, 1), 4.01), math.radians(124), math.radians(236)),  # 31
    Part.ArcOfCircle(Part.Circle(V(86.79, 0.32, 0), V(0, 0, 1), 4.01), math.radians(56), math.radians(124)),  # 32
    Part.Circle(V(86.49, 28.75, 0), V(0, 0, 1), 2.52),  # 33
], False)
sketch3.addConstraint([
    Sketcher.Constraint("Coincident", 0, 2, 1, 1),
    Sketcher.Constraint("Tangent", 1, 2, 2, 1),
    Sketcher.Constraint("Tangent", 2, 2, 3, 1),
    Sketcher.Constraint("Tangent", 3, 2, 4, 1),
    Sketcher.Constraint("Tangent", 4, 2, 5, 1),
    Sketcher.Constraint("Coincident", 5, 2, 6, 1),
    Sketcher.Constraint("Coincident", 6, 2, 7, 1),
    Sketcher.Constraint("Tangent", 7, 2, 8, 1),
    Sketcher.Constraint("Tangent", 8, 2, 9, 1),
    Sketcher.Constraint("Tangent", 9, 2, 10, 1),
    Sketcher.Constraint("Tangent", 10, 2, 11, 1),
    Sketcher.Constraint("Coincident", 11, 2, 0, 1),
    Sketcher.Constraint("Tangent", 13, 2, 14, 2),
    Sketcher.Constraint("Tangent", 14, 1, 15, 1),
    Sketcher.Constraint("Tangent", 15, 2, 16, 2),
    Sketcher.Constraint("Tangent", 16, 1, 17, 1),
    Sketcher.Constraint("Coincident", 17, 2, 18, 2),
    Sketcher.Constraint("Coincident", 18, 1, 19, 1),
    Sketcher.Constraint("Tangent", 19, 2, 20, 2),
    Sketcher.Constraint("Tangent", 20, 1, 21, 1),
    Sketcher.Constraint("Tangent", 21, 2, 22, 2),
    Sketcher.Constraint("Tangent", 22, 1, 23, 1),
    Sketcher.Constraint("Coincident", 23, 2, 24, 2),
    Sketcher.Constraint("Tangent", 24, 1, 25, 2),
    Sketcher.Constraint("Coincident", 25, 1, 13, 1),
    Sketcher.Constraint("Tangent", 28, 1, 29, 2),
    Sketcher.Constraint("Tangent", 29, 1, 30, 2),
    Sketcher.Constraint("Tangent", 30, 1, 31, 2),
    Sketcher.Constraint("Tangent", 31, 1, 32, 2),
    Sketcher.Constraint("Tangent", 32, 1, 28, 2),
    Sketcher.Constraint("Horizontal", 0),
    Sketcher.Constraint("Vertical", 3),
    Sketcher.Constraint("Horizontal", 6),
    Sketcher.Constraint("Vertical", 9),
    Sketcher.Constraint("Vertical", 13),
    Sketcher.Constraint("Horizontal", 15),
    Sketcher.Constraint("Vertical", 17),
    Sketcher.Constraint("Vertical", 19),
    Sketcher.Constraint("Horizontal", 21),
    Sketcher.Constraint("Vertical", 23),
    Sketcher.Constraint("Coincident", 24, 3, 18, 3),
    Sketcher.Constraint("Coincident", 30, 3, 28, 3),
    Sketcher.Constraint("Equal", 2, 4),
    Sketcher.Constraint("Equal", 4, 8),
    Sketcher.Constraint("Equal", 8, 10),
    Sketcher.Constraint("Equal", 14, 16),
    Sketcher.Constraint("Equal", 16, 20),
    Sketcher.Constraint("Equal", 20, 22),
    Sketcher.Constraint("Equal", 18, 24),
    Sketcher.Constraint("Equal", 24, 25),
    Sketcher.Constraint("Equal", 12, 26),
    Sketcher.Constraint("Equal", 25, 28),
    Sketcher.Constraint("Equal", 27, 33),
    Sketcher.Constraint("Symmetric", 0, 2, 6, 2, -1, 1),
    Sketcher.Constraint("Symmetric", 16, 3, 20, 3, -1),
    Sketcher.Constraint("Symmetric", 1, 2, 4, 2, -1),
    Sketcher.Constraint("Symmetric", 7, 2, 10, 2, -1),
    Sketcher.Constraint("Symmetric", 23, 2, 25, 1, -1),
    Sketcher.Constraint("PointOnObject", 24, 1, -1),
    Sketcher.Constraint("Horizontal", 18, 1, 23, 2),
    Sketcher.Constraint("Horizontal", 32, 3, 28, 1),
    Sketcher.Constraint("Horizontal", 29, 1, 30, 1),
    Sketcher.Constraint("Horizontal", 31, 1, 32, 1),
    Sketcher.Constraint("Vertical", 30, 1, 31, 1),
    Sketcher.Constraint("Radius", 2, 5.0),
    Sketcher.Constraint("Radius", 14, 2.0),
    Sketcher.Constraint("DistanceX", 0, 2, 0, 1, 160.0),
    Sketcher.Constraint("DistanceY", -1, 1, 0, 2, 40.0),
    Sketcher.Constraint("Diameter", 27, 5.041919),
    Sketcher.Constraint("Radius", 18, 4.01079),
    Sketcher.Constraint("Diameter", 12, 4.946865),
    Sketcher.Constraint("DistanceX", 28, 3, 10, 3, 2.451901),
    Sketcher.Constraint("DistanceX", 1, 2, 2, 3, 1.699401),
    Sketcher.Constraint("DistanceX", 15, 2, 15, 1, 0.453674),
    Sketcher.Constraint("DistanceY", 3, 2, 3, 1, 62.784545),
    Sketcher.Constraint("DistanceY", 9, 1, 9, 2, 63.336635),
    Sketcher.Constraint("DistanceY", 13, 2, 13, 1, 4.943627),
    Sketcher.Constraint("DistanceX", 14, 3, -1, 1, 86.428109),
    Sketcher.Constraint("DistanceY", -1, 1, 27, 3, 28.430521),
    Sketcher.Constraint("DistanceY", -1, 1, 28, 3, 0.321328),
    Sketcher.Constraint("DistanceY", -1, 1, 33, 3, 28.75185),
    Sketcher.Constraint("DistanceX", -1, 1, 7, 2, 90.811371),
    Sketcher.Constraint("DistanceX", -1, 1, 29, 1, 89.012231),
    Sketcher.Constraint("DistanceX", 12, 3, 8, 3, 176.166988),
    Sketcher.Constraint("DistanceX", 26, 3, 8, 3, 2.726648),
    Sketcher.Constraint("DistanceY", 8, 3, 26, 3, 3.193111),
    Sketcher.Constraint("DistanceY", 12, 3, 26, 3, 0.321328),
    Sketcher.Constraint("DistanceX", 27, 3, 18, 3, 0.296369),
    Sketcher.Constraint("DistanceX", 33, 3, 10, 3, 2.74827),
])
pad3 = body.newObject("PartDesign::Pad", "Pad002")
pad3.Profile = sketch3
pad3.Length = 6

doc.recompute()
